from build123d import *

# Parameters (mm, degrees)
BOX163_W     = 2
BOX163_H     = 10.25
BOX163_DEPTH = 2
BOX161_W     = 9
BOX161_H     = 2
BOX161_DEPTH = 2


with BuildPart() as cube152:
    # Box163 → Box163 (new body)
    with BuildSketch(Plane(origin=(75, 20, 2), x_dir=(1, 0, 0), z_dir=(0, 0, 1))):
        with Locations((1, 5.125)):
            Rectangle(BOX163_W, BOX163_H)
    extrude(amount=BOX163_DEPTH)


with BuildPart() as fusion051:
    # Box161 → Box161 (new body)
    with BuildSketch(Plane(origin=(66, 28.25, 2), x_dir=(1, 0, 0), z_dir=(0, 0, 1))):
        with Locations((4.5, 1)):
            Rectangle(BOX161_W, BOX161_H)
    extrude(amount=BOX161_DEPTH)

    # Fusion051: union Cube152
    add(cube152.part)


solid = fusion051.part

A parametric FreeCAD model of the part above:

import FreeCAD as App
import Part
import Sketcher
from FreeCAD import Vector


def add_polygon(sketch, points):
    """Adds a closed chain of lines whose ends are joined by coincident constraints."""
    first, n = sketch.GeometryCount, len(points)
    for a, b in zip(points, points[1:] + points[:1]):
        sketch.addGeometry(Part.LineSegment(App.Vector(*a, 0), App.Vector(*b, 0)), False)
    for i in range(n):
        sketch.addConstraint(Sketcher.Constraint("Coincident", first + i, 2, first + (i + 1) % n, 1))

doc = App.newDocument("Part")
body = doc.addObject("PartDesign::Body", "Body")

# Sketch on XY plane
sketch1 = doc.addObject("Sketcher::SketchObject", "Sketch")
body.addObject(sketch1)
sketch1.AttachmentSupport = (doc.XY_Plane, [""])
sketch1.MapMode = "FlatFace"
sketch1.AttachmentOffset = App.Placement(Vector(0, 0, 2), App.Rotation())
add_polygon(sketch1, [(75, 30.2), (75, 20), (77, 20), (77, 30.2)])  # lines 0-3
sketch1.addConstraint([
    Sketcher.Constraint("Vertical", 0),
    Sketcher.Constraint("Horizontal", 1),
    Sketcher.Constraint("Vertical", 2),
    Sketcher.Constraint("Horizontal", 3),
    Sketcher.Constraint("DistanceX", 1, 1, 1, 2, 2.0),
    Sketcher.Constraint("DistanceX", -1, 1, 0, 2, 75.0),
    Sketcher.Constraint("DistanceY", -1, 1, 0, 2, 20.0),
    Sketcher.Constraint("DistanceY", 0, 2, 0, 1, 10.25),
])
pad1 = doc.addObject("PartDesign::Pad", "Pad")
body.addObject(pad1)
pad1.Profile = sketch1
pad1.Length = 2
body2 = doc.addObject("PartDesign::Body", "Body001")

# Sketch on XY plane
sketch2 = doc.addObject("Sketcher::SketchObject", "Sketch001")
body2.addObject(sketch2)
sketch2.AttachmentSupport = (doc.getObject("XY_Plane001"), [""])
sketch2.MapMode = "FlatFace"
sketch2.AttachmentOffset = App.Placement(Vector(0, 0, 2), App.Rotation())
add_polygon(sketch2, [(66, 30.2), (66, 28.2), (75, 28.2), (75, 30.2)])  # lines 0-3
sketch2.addConstraint([
    Sketcher.Constraint("Vertical", 0),
    Sketcher.Constraint("Horizontal", 1),
    Sketcher.Constraint("Vertical", 2),
    Sketcher.Constraint("Horizontal", 3),
    Sketcher.Constraint("DistanceX", 1, 1, 1, 2, 9.0),
    Sketcher.Constraint("DistanceY", 0, 2, 0, 1, 2.0),
    Sketcher.Constraint("DistanceX", -1, 1, 0, 2, 66.0),
    Sketcher.Constraint("DistanceY", -1, 1, 0, 2, 28.25),
])
pad2 = doc.addObject("PartDesign::Pad", "Pad001")
body2.addObject(pad2)
pad2.Profile = sketch2
pad2.Length = 2
doc.recompute()

boolean = doc.addObject("PartDesign::Boolean", "Boolean")
body2.addObject(boolean)
boolean.Type = "Fuse"
boolean.addObjects([body])

doc.recompute()
